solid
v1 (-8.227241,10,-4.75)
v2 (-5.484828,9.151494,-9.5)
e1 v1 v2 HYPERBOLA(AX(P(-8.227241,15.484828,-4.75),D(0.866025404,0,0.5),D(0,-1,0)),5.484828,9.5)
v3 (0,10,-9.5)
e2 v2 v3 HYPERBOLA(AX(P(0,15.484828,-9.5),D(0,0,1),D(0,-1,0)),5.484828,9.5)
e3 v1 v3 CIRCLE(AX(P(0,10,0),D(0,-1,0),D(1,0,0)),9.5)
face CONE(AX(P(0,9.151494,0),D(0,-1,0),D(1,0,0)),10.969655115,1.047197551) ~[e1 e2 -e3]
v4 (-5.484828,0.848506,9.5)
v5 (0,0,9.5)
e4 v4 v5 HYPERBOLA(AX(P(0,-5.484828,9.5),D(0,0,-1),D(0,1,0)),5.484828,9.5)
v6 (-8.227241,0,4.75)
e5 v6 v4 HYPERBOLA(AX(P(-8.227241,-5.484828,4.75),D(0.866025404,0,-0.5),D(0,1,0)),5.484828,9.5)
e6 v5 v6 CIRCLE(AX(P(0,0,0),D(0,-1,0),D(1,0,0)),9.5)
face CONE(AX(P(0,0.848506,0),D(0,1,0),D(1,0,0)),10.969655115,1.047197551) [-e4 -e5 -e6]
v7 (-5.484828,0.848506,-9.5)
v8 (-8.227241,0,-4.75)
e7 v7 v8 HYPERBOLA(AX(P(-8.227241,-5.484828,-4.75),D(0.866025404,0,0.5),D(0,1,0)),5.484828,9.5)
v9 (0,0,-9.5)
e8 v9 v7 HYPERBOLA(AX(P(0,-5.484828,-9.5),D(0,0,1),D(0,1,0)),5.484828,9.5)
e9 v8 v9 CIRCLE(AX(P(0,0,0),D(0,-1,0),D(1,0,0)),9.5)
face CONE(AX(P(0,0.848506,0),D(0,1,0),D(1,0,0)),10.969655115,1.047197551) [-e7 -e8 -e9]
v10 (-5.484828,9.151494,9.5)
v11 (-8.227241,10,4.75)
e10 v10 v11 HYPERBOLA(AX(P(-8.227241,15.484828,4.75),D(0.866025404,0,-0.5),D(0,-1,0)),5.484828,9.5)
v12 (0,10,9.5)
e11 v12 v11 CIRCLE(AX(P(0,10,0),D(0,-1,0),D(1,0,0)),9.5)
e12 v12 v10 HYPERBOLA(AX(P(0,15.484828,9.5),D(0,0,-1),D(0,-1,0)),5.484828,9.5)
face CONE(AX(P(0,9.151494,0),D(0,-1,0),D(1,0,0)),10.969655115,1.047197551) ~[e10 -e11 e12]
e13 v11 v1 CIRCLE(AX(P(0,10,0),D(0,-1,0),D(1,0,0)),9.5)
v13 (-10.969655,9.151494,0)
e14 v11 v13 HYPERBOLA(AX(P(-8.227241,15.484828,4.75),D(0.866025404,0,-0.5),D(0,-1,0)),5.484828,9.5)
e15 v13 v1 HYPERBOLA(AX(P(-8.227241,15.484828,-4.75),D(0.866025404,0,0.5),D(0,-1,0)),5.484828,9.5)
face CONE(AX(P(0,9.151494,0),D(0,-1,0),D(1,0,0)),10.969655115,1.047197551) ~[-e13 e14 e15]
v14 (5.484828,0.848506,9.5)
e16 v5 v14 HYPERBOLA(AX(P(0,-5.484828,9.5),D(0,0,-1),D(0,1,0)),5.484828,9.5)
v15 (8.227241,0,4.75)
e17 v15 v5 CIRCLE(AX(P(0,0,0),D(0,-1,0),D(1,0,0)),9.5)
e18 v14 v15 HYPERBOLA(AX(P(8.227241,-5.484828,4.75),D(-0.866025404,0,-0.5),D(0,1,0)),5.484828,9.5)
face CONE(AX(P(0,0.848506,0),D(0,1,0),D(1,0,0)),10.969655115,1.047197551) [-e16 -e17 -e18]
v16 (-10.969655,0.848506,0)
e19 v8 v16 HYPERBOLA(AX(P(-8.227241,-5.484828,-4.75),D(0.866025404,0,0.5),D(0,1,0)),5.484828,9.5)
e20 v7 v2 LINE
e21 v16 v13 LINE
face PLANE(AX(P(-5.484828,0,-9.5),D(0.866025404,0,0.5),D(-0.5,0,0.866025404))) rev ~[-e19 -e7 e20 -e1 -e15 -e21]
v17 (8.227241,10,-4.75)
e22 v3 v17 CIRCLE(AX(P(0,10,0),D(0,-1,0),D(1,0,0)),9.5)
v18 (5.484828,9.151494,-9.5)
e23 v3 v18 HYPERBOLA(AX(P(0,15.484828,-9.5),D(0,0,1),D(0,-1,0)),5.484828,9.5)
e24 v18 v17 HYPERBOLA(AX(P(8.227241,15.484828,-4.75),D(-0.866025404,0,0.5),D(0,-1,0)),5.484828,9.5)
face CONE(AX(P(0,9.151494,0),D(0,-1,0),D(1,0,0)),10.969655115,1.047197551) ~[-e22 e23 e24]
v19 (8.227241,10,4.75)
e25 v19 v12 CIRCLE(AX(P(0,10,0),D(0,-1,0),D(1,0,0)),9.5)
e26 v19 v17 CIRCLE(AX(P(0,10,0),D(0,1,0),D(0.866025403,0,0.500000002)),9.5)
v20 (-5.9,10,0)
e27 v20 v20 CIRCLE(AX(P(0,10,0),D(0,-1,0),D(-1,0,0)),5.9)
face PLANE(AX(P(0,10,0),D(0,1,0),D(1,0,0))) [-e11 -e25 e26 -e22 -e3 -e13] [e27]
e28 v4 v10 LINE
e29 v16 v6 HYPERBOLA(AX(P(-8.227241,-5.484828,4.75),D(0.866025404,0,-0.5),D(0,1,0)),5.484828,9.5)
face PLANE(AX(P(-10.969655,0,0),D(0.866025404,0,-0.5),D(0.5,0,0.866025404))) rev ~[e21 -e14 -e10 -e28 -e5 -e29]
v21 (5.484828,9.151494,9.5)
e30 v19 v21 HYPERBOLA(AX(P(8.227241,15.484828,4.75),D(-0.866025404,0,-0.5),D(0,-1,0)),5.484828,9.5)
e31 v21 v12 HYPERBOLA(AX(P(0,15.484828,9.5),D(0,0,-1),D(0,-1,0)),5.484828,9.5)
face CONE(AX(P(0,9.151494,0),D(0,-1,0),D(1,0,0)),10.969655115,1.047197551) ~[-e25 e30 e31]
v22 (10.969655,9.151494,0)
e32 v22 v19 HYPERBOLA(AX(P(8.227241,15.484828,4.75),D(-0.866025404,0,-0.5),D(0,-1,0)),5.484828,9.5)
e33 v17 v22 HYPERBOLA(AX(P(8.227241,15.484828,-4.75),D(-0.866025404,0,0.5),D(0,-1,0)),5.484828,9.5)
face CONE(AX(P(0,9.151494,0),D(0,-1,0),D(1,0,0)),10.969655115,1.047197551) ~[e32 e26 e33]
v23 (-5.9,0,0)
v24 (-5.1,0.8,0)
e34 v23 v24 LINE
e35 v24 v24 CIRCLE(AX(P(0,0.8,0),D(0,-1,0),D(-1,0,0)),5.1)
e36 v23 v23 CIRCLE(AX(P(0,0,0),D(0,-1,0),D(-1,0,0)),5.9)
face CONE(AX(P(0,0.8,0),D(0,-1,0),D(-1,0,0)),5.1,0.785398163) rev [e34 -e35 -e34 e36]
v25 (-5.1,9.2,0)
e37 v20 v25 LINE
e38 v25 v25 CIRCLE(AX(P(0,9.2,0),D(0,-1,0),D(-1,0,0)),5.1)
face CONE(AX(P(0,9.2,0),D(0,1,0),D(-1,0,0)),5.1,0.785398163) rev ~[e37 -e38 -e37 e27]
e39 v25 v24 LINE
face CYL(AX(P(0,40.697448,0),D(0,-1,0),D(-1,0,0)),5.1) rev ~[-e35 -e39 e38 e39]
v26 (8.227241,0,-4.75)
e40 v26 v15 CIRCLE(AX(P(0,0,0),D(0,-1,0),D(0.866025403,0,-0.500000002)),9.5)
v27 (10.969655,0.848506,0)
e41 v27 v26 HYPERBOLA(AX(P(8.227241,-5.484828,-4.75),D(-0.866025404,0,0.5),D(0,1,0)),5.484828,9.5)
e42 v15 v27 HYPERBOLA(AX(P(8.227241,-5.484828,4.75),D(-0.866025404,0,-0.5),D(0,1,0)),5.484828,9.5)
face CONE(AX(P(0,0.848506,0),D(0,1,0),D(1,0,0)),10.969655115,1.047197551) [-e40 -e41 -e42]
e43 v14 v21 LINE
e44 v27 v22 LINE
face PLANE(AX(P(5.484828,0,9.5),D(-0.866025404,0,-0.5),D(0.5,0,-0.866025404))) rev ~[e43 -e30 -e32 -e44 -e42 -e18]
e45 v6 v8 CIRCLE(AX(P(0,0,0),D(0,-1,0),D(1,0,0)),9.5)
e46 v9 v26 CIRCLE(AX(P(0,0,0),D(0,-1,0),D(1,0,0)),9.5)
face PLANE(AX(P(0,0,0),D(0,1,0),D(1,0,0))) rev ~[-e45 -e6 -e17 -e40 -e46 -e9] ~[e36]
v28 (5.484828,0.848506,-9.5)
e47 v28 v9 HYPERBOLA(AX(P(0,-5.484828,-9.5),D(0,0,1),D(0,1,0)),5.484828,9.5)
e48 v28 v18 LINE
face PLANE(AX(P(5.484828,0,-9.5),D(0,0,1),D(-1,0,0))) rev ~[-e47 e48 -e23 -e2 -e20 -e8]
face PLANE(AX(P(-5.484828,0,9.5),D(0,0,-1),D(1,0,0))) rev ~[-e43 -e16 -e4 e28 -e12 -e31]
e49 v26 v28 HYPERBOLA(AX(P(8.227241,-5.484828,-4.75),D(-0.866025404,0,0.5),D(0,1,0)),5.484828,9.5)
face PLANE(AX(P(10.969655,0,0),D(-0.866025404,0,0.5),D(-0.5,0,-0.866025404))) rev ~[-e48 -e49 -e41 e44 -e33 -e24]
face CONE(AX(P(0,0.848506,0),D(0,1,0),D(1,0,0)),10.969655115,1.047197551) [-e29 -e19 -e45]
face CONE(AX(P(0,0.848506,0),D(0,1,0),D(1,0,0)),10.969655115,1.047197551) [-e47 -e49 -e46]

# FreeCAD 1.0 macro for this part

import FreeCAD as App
import Part
import Sketcher
from FreeCAD import Vector
Q = App.Units.Quantity


def edges_at(feature, points):
    """Names of the edges that pass closest to the given points."""
    edges = feature.Shape.Edges
    near = lambda p: min(range(len(edges)), key=lambda i: edges[i].distToShape(Part.Vertex(*p))[0])
    return sorted({f"Edge{near(p) + 1}" for p in points})

doc = App.newDocument("Part")
params = doc.addObject("Spreadsheet::Sheet", "Params")
for row, (alias, value) in enumerate([
    ("pad1_length", "10 mm"),
    ("groove_angle", "360 deg"),
    ("sketch3_diameter", "10.2 mm"),
    ("hole_diameter", "10.2 mm"),
    ("chamfer_size", "0.8 mm"),
], start=1):
    params.set(f"A{row}", alias)
    params.set(f"B{row}", "=" + value)
    params.setAlias(f"B{row}", alias)

body = doc.addObject("PartDesign::Body", "Body")

sketch1 = body.newObject("Sketcher::SketchObject", "Sketch")
sketch1.AttachmentSupport = (doc.getObject("XZ_Plane"), [""])
sketch1.MapMode = "FlatFace"
sketch1.addGeometry([
    Part.LineSegment(Vector(5, -10, 0), Vector(-5, -10, 0)),
    Part.LineSegment(Vector(-5, -10, 0), Vector(-11, 0, 0)),
    Part.LineSegment(Vector(-11, 0, 0), Vector(-5, 10, 0)),
    Part.LineSegment(Vector(-5, 10, 0), Vector(5, 10, 0)),
    Part.LineSegment(Vector(5, 10, 0), Vector(11, 0, 0)),
    Part.LineSegment(Vector(11, 0, 0), Vector(5, -10, 0)),
], False)
sketch1.addConstraint([
    Sketcher.Constraint("Coincident", 0, 2, 1, 1),
    Sketcher.Constraint("Coincident", 1, 2, 2, 1),
    Sketcher.Constraint("Coincident", 2, 2, 3, 1),
    Sketcher.Constraint("Coincident", 3, 2, 4, 1),
    Sketcher.Constraint("Coincident", 4, 2, 5, 1),
    Sketcher.Constraint("Coincident", 5, 2, 0, 1),
    Sketcher.Constraint("Horizontal", 0),
    Sketcher.Constraint("Horizontal", 3),
    Sketcher.Constraint("Symmetric", 0, 2, 3, 2, -1, 1),
    Sketcher.Constraint("Symmetric", 1, 2, 4, 2, -1, 1),
    Sketcher.Constraint("PointOnObject", 1, 2, -1),
    Sketcher.Constraint("Parallel", 2, 5),
    Sketcher.Constraint("Vertical", 0, 2, 2, 2),
    Sketcher.Constraint("Angle", 1, Q("120 deg")),
    Sketcher.Constraint("DistanceY", 0, 2, 2, 2, 19.0),
    Sketcher.Constraint("DistanceX", 0, 2, 0, 1, 10.969655),
])
pad1 = body.newObject("PartDesign::Pad", "Pad")
pad1.Profile = sketch1
pad1.setExpression("Length", "Params.pad1_length")
pad1.Reversed = True

sketch2 = body.newObject("Sketcher::SketchObject", "Sketch001")
sketch2.AttachmentSupport = (doc.getObject("XY_Plane"), [""])
sketch2.MapMode = "FlatFace"
sketch2.addGeometry([
    Part.LineSegment(Vector(11, 10, 0), Vector(9.5, 10, 0)),
    Part.LineSegment(Vector(9.5, 10, 0), Vector(11, 9.2, 0)),
    Part.LineSegment(Vector(11, 9.2, 0), Vector(11, 10, 0)),
    Part.LineSegment(Vector(11, 0.8, 0), Vector(9.5, 0, 0)),
    Part.LineSegment(Vector(9.5, 0, 0), Vector(11, 0, 0)),
    Part.LineSegment(Vector(11, 0, 0), Vector(11, 0.8, 0)),
], False)
sketch2.addConstraint([
    Sketcher.Constraint("Coincident", 0, 2, 1, 1),
    Sketcher.Constraint("Coincident", 1, 2, 2, 1),
    Sketcher.Constraint("Coincident", 2, 2, 0, 1),
    Sketcher.Constraint("Coincident", 3, 2, 4, 1),
    Sketcher.Constraint("Coincident", 4, 2, 5, 1),
    Sketcher.Constraint("Coincident", 5, 2, 3, 1),
    Sketcher.Constraint("Horizontal", 0),
    Sketcher.Constraint("Vertical", 2),
    Sketcher.Constraint("Horizontal", 4),
    Sketcher.Constraint("Vertical", 5),
    Sketcher.Constraint("PointOnObject", 3, 2, -1),
    Sketcher.Constraint("Vertical", 0, 2, 3, 2),
    Sketcher.Constraint("Vertical", 2, 2, 4, 2),
    Sketcher.Constraint("Equal", 2, 5),
    Sketcher.Constraint("Angle", 1, Q("-30 deg")),
    Sketcher.Constraint("DistanceY", -1, 1, 0, 2, 10.0),
    Sketcher.Constraint("DistanceX", -1, 1, 0, 2, 9.5),
    Sketcher.Constraint("Distance", 1, 1.697012),
])
groove = body.newObject("PartDesign::Groove", "Groove")
groove.Profile = sketch2
groove.ReferenceAxis = (sketch2, ["V_Axis"])
groove.setExpression("Angle", "Params.groove_angle")

sketch3 = body.newObject("Sketcher::SketchObject", "Sketch002")
sketch3.AttachmentSupport = (doc.getObject("XZ_Plane"), [""])
sketch3.MapMode = "FlatFace"
sketch3.AttachmentOffset = App.Placement(Vector(0, 0, -10), App.Rotation())
sketch3.addGeometry(Part.Circle(Vector(0, 0, 0), Vector(0, 0, 1), 5), False)
sketch3.addConstraint([
    Sketcher.Constraint("Coincident", 0, 3, -1, 1),
    Sketcher.Constraint("Diameter", 0, 10.2),
])
sketch3.setExpression("Constraints[1]", "Params.sketch3_diameter")
doc.recompute()
hole = body.newObject("PartDesign::Hole", "Hole")
hole.Profile = sketch3
hole.ThreadType = "None"
hole.setExpression("Diameter", "Params.hole_diameter")
hole.DepthType = "ThroughAll"
hole.Reversed = True
doc.recompute()

chamfer = body.newObject("PartDesign::Chamfer", "Chamfer")
chamfer.Base = (hole, edges_at(hole, [(5.1, 10, 0), (5.1, 0, 0)]))
chamfer.setExpression("Size", "Params.chamfer_size")

doc.recompute()
